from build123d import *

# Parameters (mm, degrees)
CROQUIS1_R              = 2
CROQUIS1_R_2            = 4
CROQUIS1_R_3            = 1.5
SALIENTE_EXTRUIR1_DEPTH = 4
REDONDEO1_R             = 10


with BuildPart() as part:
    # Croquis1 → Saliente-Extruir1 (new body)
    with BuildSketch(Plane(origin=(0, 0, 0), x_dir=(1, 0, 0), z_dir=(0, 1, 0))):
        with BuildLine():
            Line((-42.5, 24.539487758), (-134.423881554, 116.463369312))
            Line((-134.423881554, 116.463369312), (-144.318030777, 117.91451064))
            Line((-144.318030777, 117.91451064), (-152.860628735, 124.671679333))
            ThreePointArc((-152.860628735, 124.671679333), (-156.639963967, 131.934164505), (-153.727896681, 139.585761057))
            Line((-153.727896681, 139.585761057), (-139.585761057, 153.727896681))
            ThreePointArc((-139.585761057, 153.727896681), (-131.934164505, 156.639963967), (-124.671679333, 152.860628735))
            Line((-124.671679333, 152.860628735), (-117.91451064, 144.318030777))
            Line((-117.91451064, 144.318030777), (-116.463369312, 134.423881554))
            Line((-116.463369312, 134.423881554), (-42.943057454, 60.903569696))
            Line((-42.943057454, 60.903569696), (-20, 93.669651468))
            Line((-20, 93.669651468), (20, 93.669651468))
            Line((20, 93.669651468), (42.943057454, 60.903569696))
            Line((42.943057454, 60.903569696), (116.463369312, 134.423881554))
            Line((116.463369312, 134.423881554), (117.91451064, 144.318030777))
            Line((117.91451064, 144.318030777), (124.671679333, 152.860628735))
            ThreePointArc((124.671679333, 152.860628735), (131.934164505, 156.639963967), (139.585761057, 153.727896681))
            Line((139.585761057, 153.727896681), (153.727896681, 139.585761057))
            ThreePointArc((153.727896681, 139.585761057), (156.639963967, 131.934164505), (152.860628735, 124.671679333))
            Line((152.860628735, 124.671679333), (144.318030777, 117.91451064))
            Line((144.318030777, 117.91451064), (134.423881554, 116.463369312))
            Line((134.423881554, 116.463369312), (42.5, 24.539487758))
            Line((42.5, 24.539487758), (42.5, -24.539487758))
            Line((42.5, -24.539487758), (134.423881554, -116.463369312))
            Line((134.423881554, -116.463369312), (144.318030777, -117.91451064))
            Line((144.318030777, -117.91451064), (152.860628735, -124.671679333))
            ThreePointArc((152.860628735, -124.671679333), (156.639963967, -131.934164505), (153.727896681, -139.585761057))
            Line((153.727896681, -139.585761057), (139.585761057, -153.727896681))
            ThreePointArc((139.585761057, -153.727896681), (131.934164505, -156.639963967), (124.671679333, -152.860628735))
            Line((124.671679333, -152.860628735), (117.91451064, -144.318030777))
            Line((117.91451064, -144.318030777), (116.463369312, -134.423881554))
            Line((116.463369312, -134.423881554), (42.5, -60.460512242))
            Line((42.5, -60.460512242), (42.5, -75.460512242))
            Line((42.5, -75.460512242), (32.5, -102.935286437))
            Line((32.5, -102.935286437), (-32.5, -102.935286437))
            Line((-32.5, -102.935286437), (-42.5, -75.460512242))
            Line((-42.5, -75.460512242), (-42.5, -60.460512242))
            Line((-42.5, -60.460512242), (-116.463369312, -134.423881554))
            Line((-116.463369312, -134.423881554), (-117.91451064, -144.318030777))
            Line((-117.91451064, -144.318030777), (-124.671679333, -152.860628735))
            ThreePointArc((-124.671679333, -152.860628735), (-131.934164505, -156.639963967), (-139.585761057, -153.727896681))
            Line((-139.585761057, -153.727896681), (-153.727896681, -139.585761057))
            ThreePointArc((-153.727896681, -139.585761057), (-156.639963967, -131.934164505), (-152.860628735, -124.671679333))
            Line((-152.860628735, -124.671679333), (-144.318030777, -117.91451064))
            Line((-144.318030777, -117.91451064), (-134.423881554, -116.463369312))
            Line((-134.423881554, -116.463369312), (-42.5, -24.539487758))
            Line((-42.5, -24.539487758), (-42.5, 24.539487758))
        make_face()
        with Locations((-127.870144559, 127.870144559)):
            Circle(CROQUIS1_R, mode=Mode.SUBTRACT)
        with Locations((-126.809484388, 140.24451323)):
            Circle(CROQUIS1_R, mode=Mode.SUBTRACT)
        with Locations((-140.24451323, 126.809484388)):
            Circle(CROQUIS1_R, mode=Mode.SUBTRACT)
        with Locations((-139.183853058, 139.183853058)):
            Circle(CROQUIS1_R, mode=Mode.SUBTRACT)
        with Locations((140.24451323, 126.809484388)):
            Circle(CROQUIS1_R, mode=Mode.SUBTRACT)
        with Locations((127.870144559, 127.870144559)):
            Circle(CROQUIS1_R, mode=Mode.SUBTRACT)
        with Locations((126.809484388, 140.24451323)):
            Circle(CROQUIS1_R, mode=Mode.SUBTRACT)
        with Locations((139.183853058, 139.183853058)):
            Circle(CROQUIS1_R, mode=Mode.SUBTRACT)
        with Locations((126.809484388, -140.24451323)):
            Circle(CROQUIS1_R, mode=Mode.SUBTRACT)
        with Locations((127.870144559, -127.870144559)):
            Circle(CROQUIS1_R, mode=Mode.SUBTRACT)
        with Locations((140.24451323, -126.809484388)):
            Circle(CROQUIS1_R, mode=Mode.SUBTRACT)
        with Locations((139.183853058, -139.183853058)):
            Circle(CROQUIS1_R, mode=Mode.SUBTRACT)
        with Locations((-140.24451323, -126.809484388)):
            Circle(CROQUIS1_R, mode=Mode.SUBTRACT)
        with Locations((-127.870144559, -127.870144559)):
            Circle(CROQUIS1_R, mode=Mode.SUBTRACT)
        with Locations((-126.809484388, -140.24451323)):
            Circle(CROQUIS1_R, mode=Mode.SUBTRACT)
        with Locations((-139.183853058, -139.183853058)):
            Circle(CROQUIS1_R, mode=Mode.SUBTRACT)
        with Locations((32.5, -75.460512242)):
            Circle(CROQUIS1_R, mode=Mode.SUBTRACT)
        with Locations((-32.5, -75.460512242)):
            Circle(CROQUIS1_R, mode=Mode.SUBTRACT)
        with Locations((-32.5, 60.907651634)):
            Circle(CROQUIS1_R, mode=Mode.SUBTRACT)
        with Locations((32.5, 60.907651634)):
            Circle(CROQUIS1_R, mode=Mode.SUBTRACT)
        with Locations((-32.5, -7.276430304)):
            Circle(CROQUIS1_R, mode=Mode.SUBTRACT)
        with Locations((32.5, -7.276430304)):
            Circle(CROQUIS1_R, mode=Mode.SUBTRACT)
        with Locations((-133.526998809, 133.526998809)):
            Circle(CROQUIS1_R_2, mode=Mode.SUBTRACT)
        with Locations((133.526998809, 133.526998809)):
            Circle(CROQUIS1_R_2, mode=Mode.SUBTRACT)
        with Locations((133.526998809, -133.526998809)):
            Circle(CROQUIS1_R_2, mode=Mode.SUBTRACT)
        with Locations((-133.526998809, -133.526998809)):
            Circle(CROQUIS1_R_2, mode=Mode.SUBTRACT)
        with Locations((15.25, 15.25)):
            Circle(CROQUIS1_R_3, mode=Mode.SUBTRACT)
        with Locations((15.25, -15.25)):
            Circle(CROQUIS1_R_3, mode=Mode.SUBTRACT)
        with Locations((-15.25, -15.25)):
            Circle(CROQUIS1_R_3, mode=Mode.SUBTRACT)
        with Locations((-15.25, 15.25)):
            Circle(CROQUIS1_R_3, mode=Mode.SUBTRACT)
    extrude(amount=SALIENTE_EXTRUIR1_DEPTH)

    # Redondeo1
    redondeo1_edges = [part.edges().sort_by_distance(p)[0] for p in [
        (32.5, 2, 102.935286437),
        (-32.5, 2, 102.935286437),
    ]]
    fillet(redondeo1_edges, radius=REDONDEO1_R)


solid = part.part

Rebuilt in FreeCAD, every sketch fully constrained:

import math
import FreeCAD as App
import Part
import Sketcher
from FreeCAD import Vector
Q = App.Units.Quantity


def edges_at(feature, points):
    """Names of the edges that pass closest to the given points."""
    edges = feature.Shape.Edges
    near = lambda p: min(range(len(edges)), key=lambda i: edges[i].distToShape(Part.Vertex(*p))[0])
    return sorted({f"Edge{near(p) + 1}" for p in points})

doc = App.newDocument("Part")
body = doc.addObject("PartDesign::Body", "Body")

sketch1 = body.newObject("Sketcher::SketchObject", "Sketch")
sketch1.AttachmentSupport = (doc.getObject("XZ_Plane"), [""])
sketch1.MapMode = "FlatFace"
sketch1.addGeometry([
    Part.LineSegment(Vector(-134.423882, -116.463369, 0), Vector(-42.5, -24.539488, 0)),
    Part.LineSegment(Vector(-42.5, -24.539488, 0), Vector(-42.5, 24.539488, 0)),
    Part.LineSegment(Vector(-42.5, 24.539488, 0), Vector(-134.423882, 116.463369, 0)),
    Part.LineSegment(Vector(-134.423882, 116.463369, 0), Vector(-144.318031, 117.914511, 0)),
    Part.LineSegment(Vector(-144.318031, 117.914511, 0), Vector(-152.860629, 124.671679, 0)),
    Part.ArcOfCircle(Part.Circle(Vector(-146.656829, 132.514693, 0), Vector(0, 0, 1), 10), math.radians(135), math.radians(231.656112)),
    Part.LineSegment(Vector(-153.727897, 139.585761, 0), Vector(-139.585761, 153.727897, 0)),
    Part.ArcOfCircle(Part.Circle(Vector(-132.514693, 146.656829, 0), Vector(0, 0, 1), 10), math.radians(38.343888), math.radians(135)),
    Part.LineSegment(Vector(-124.671679, 152.860629, 0), Vector(-117.914511, 144.318031, 0)),
    Part.LineSegment(Vector(-117.914511, 144.318031, 0), Vector(-116.463369, 134.423882, 0)),
    Part.LineSegment(Vector(-116.463369, 134.423882, 0), Vector(-42.5, 60.460512, 0)),
    Part.LineSegment(Vector(-42.5, 60.460512, 0), Vector(-42.5, 75.460512, 0)),
    Part.LineSegment(Vector(-42.5, 75.460512, 0), Vector(-32.5, 102.935286, 0)),
    Part.LineSegment(Vector(-32.5, 102.935286, 0), Vector(32.5, 102.935286, 0)),
    Part.LineSegment(Vector(32.5, 102.935286, 0), Vector(42.5, 75.460512, 0)),
    Part.LineSegment(Vector(42.5, 75.460512, 0), Vector(42.5, 60.460512, 0)),
    Part.LineSegment(Vector(42.5, 60.460512, 0), Vector(116.463369, 134.423882, 0)),
    Part.LineSegment(Vector(116.463369, 134.423882, 0), Vector(117.914511, 144.318031, 0)),
    Part.LineSegment(Vector(117.914511, 144.318031, 0), Vector(124.671679, 152.860629, 0)),
    Part.ArcOfCircle(Part.Circle(Vector(132.514693, 146.656829, 0), Vector(0, 0, 1), 10), math.radians(45), math.radians(141.656112)),
    Part.LineSegment(Vector(139.585761, 153.727897, 0), Vector(153.727897, 139.585761, 0)),
    Part.ArcOfCircle(Part.Circle(Vector(146.656829, 132.514693, 0), Vector(0, 0, 1), 10), math.radians(-51.656112), math.radians(45)),
    Part.LineSegment(Vector(152.860629, 124.671679, 0), Vector(144.318031, 117.914511, 0)),
    Part.LineSegment(Vector(144.318031, 117.914511, 0), Vector(134.423882, 116.463369, 0)),
    Part.LineSegment(Vector(134.423882, 116.463369, 0), Vector(42.5, 24.539488, 0)),
    Part.LineSegment(Vector(42.5, 24.539488, 0), Vector(42.5, -24.539488, 0)),
    Part.LineSegment(Vector(42.5, -24.539488, 0), Vector(134.423882, -116.463369, 0)),
    Part.LineSegment(Vector(134.423882, -116.463369, 0), Vector(144.318031, -117.914511, 0)),
    Part.LineSegment(Vector(144.318031, -117.914511, 0), Vector(152.860629, -124.671679, 0)),
    Part.ArcOfCircle(Part.Circle(Vector(146.656829, -132.514693, 0), Vector(0, 0, 1), 10), math.radians(-45), math.radians(51.656112)),
    Part.LineSegment(Vector(153.727897, -139.585761, 0), Vector(139.585761, -153.727897, 0)),
    Part.ArcOfCircle(Part.Circle(Vector(132.514693, -146.656829, 0), Vector(0, 0, 1), 10), math.radians(-141.656112), math.radians(-45)),
    Part.LineSegment(Vector(124.671679, -152.860629, 0), Vector(117.914511, -144.318031, 0)),
    Part.LineSegment(Vector(117.914511, -144.318031, 0), Vector(116.463369, -134.423882, 0)),
    Part.LineSegment(Vector(116.463369, -134.423882, 0), Vector(42.943057, -60.90357, 0)),
    Part.LineSegment(Vector(42.943057, -60.90357, 0), Vector(20, -93.669651, 0)),
    Part.LineSegment(Vector(20, -93.669651, 0), Vector(-20, -93.669651, 0)),
    Part.LineSegment(Vector(-20, -93.669651, 0), Vector(-42.943057, -60.90357, 0)),
    Part.LineSegment(Vector(-42.943057, -60.90357, 0), Vector(-116.463369, -134.423882, 0)),
    Part.LineSegment(Vector(-116.463369, -134.423882, 0), Vector(-117.914511, -144.318031, 0)),
    Part.LineSegment(Vector(-117.914511, -144.318031, 0), Vector(-124.671679, -152.860629, 0)),
    Part.ArcOfCircle(Part.Circle(Vector(-132.514693, -146.656829, 0), Vector(0, 0, 1), 10), math.radians(-135), math.radians(-38.343888)),
    Part.LineSegment(Vector(-139.585761, -153.727897, 0), Vector(-153.727897, -139.585761, 0)),
    Part.ArcOfCircle(Part.Circle(Vector(-146.656829, -132.514693, 0), Vector(0, 0, 1), 10), math.radians(128.343888), math.radians(225)),
    Part.LineSegment(Vector(-152.860629, -124.671679, 0), Vector(-144.318031, -117.914511, 0)),
    Part.LineSegment(Vector(-144.318031, -117.914511, 0), Vector(-134.423882, -116.463369, 0)),
    Part.Circle(Vector(139.183853, 139.183853, 0), Vector(0, 0, 1), 2),
    Part.Circle(Vector(133.526999, 133.526999, 0), Vector(0, 0, 1), 4),
    Part.Circle(Vector(126.809484, 140.244513, 0), Vector(0, 0, 1), 2),
    Part.Circle(Vector(140.244513, 126.809484, 0), Vector(0, 0, 1), 2),
    Part.Circle(Vector(127.870145, 127.870145, 0), Vector(0, 0, 1), 2),
    Part.Circle(Vector(32.5, 75.460512, 0), Vector(0, 0, 1), 2),
    Part.Circle(Vector(32.5, 7.27643, 0), Vector(0, 0, 1), 2),
    Part.Circle(Vector(15.25, 15.25, 0), Vector(0, 0, 1), 1.5),
    Part.Circle(Vector(-32.5, 75.460512, 0), Vector(0, 0, 1), 2),
    Part.Circle(Vector(-126.809484, 140.244513, 0), Vector(0, 0, 1), 2),
    Part.Circle(Vector(-139.183853, 139.183853, 0), Vector(0, 0, 1), 2),
    Part.Circle(Vector(-133.526999, 133.526999, 0), Vector(0, 0, 1), 4),
    Part.Circle(Vector(-127.870145, 127.870145, 0), Vector(0, 0, 1), 2),
    Part.Circle(Vector(-140.244513, 126.809484, 0), Vector(0, 0, 1), 2),
    Part.Circle(Vector(-15.25, 15.25, 0), Vector(0, 0, 1), 1.5),
    Part.Circle(Vector(-32.5, 7.27643, 0), Vector(0, 0, 1), 2),
    Part.Circle(Vector(15.25, -15.25, 0), Vector(0, 0, 1), 1.5),
    Part.Circle(Vector(32.5, -60.907652, 0), Vector(0, 0, 1), 2),
    Part.Circle(Vector(140.244513, -126.809484, 0), Vector(0, 0, 1), 2),
    Part.Circle(Vector(127.870145, -127.870145, 0), Vector(0, 0, 1), 2),
    Part.Circle(Vector(133.526999, -133.526999, 0), Vector(0, 0, 1), 4),
    Part.Circle(Vector(139.183853, -139.183853, 0), Vector(0, 0, 1), 2),
    Part.Circle(Vector(126.809484, -140.244513, 0), Vector(0, 0, 1), 2),
    Part.Circle(Vector(-15.25, -15.25, 0), Vector(0, 0, 1), 1.5),
    Part.Circle(Vector(-32.5, -60.907652, 0), Vector(0, 0, 1), 2),
    Part.Circle(Vector(-127.870145, -127.870145, 0), Vector(0, 0, 1), 2),
    Part.Circle(Vector(-140.244513, -126.809484, 0), Vector(0, 0, 1), 2),
    Part.Circle(Vector(-126.809484, -140.244513, 0), Vector(0, 0, 1), 2),
    Part.Circle(Vector(-133.526999, -133.526999, 0), Vector(0, 0, 1), 4),
    Part.Circle(Vector(-139.183853, -139.183853, 0), Vector(0, 0, 1), 2),
], False)
sketch1.addConstraint([
    Sketcher.Constraint("Coincident", 0, 2, 1, 1),
    Sketcher.Constraint("Coincident", 1, 2, 2, 1),
    Sketcher.Constraint("Coincident", 2, 2, 3, 1),
    Sketcher.Constraint("Coincident", 3, 2, 4, 1),
    Sketcher.Constraint("Tangent", 4, 2, 5, 2),
    Sketcher.Constraint("Tangent", 5, 1, 6, 1),
    Sketcher.Constraint("Tangent", 6, 2, 7, 2),
    Sketcher.Constraint("Tangent", 7, 1, 8, 1),
    Sketcher.Constraint("Coincident", 8, 2, 9, 1),
    Sketcher.Constraint("Coincident", 9, 2, 10, 1),
    Sketcher.Constraint("Coincident", 10, 2, 11, 1),
    Sketcher.Constraint("Coincident", 11, 2, 12, 1),
    Sketcher.Constraint("Coincident", 12, 2, 13, 1),
    Sketcher.Constraint("Coincident", 13, 2, 14, 1),
    Sketcher.Constraint("Coincident", 14, 2, 15, 1),
    Sketcher.Constraint("Coincident", 15, 2, 16, 1),
    Sketcher.Constraint("Coincident", 16, 2, 17, 1),
    Sketcher.Constraint("Coincident", 17, 2, 18, 1),
    Sketcher.Constraint("Tangent", 18, 2, 19, 2),
    Sketcher.Constraint("Tangent", 19, 1, 20, 1),
    Sketcher.Constraint("Tangent", 20, 2, 21, 2),
    Sketcher.Constraint("Tangent", 21, 1, 22, 1),
    Sketcher.Constraint("Coincident", 22, 2, 23, 1),
    Sketcher.Constraint("Coincident", 23, 2, 24, 1),
    Sketcher.Constraint("Coincident", 24, 2, 25, 1),
    Sketcher.Constraint("Coincident", 25, 2, 26, 1),
    Sketcher.Constraint("Coincident", 26, 2, 27, 1),
    Sketcher.Constraint("Coincident", 27, 2, 28, 1),
    Sketcher.Constraint("Tangent", 28, 2, 29, 2),
    Sketcher.Constraint("Tangent", 29, 1, 30, 1),
    Sketcher.Constraint("Tangent", 30, 2, 31, 2),
    Sketcher.Constraint("Tangent", 31, 1, 32, 1),
    Sketcher.Constraint("Coincident", 32, 2, 33, 1),
    Sketcher.Constraint("Coincident", 33, 2, 34, 1),
    Sketcher.Constraint("Coincident", 34, 2, 35, 1),
    Sketcher.Constraint("Coincident", 35, 2, 36, 1),
    Sketcher.Constraint("Coincident", 36, 2, 37, 1),
    Sketcher.Constraint("Coincident", 37, 2, 38, 1),
    Sketcher.Constraint("Coincident", 38, 2, 39, 1),
    Sketcher.Constraint("Coincident", 39, 2, 40, 1),
    Sketcher.Constraint("Tangent", 40, 2, 41, 2),
    Sketcher.Constraint("Tangent", 41, 1, 42, 1),
    Sketcher.Constraint("Tangent", 42, 2, 43, 2),
    Sketcher.Constraint("Tangent", 43, 1, 44, 1),
    Sketcher.Constraint("Coincident", 44, 2, 45, 1),
    Sketcher.Constraint("Coincident", 45, 2, 0, 1),
    Sketcher.Constraint("Vertical", 1),
    Sketcher.Constraint("Vertical", 11),
    Sketcher.Constraint("Horizontal", 13),
    Sketcher.Constraint("Vertical", 15),
    Sketcher.Constraint("Vertical", 25),
    Sketcher.Constraint("Horizontal", 36),
    Sketcher.Constraint("Equal", 5, 7),
    Sketcher.Constraint("Equal", 7, 19),
    Sketcher.Constraint("Equal", 19, 21),
    Sketcher.Constraint("Equal", 21, 29),
    Sketcher.Constraint("Equal", 29, 31),
    Sketcher.Constraint("Equal", 31, 41),
    Sketcher.Constraint("Equal", 41, 43),
    Sketcher.Constraint("Equal", 46, 48),
    Sketcher.Constraint("Equal", 48, 49),
    Sketcher.Constraint("Equal", 49, 50),
    Sketcher.Constraint("Equal", 50, 51),
    Sketcher.Constraint("Equal", 51, 52),
    Sketcher.Constraint("Equal", 52, 54),
    Sketcher.Constraint("Equal", 54, 55),
    Sketcher.Constraint("Equal", 55, 56),
    Sketcher.Constraint("Equal", 47, 57),
    Sketcher.Constraint("Equal", 56, 58),
    Sketcher.Constraint("Equal", 58, 59),
    Sketcher.Constraint("Equal", 53, 60),
    Sketcher.Constraint("Equal", 59, 61),
    Sketcher.Constraint("Equal", 60, 62),
    Sketcher.Constraint("Equal", 61, 63),
    Sketcher.Constraint("Equal", 63, 64),
    Sketcher.Constraint("Equal", 64, 65),
    Sketcher.Constraint("Equal", 57, 66),
    Sketcher.Constraint("Equal", 65, 67),
    Sketcher.Constraint("Equal", 67, 68),
    Sketcher.Constraint("Equal", 62, 69),
    Sketcher.Constraint("Equal", 68, 70),
    Sketcher.Constraint("Equal", 70, 71),
    Sketcher.Constraint("Equal", 71, 72),
    Sketcher.Constraint("Equal", 72, 73),
    Sketcher.Constraint("Equal", 66, 74),
    Sketcher.Constraint("Equal", 73, 75),
    Sketcher.Constraint("Symmetric", 5, 3, 29, 3, -1, 1),
    Sketcher.Constraint("Symmetric", 7, 3, 31, 3, -1, 1),
    Sketcher.Constraint("Symmetric", 19, 3, 41, 3, -1, 1),
    Sketcher.Constraint("Symmetric", 21, 3, 43, 3, -1, 1),
    Sketcher.Constraint("Symmetric", 60, 3, 62, 3, -1, 1),
    Sketcher.Constraint("Symmetric", 59, 3, 64, 3, -1, 1),
    Sketcher.Constraint("Symmetric", 58, 3, 65, 3, -1, 1),
    Sketcher.Constraint("Symmetric", 57, 3, 66, 3, -1, 1),
    Sketcher.Constraint("Symmetric", 56, 3, 67, 3, -1, 1),
    Sketcher.Constraint("Symmetric", 55, 3, 68, 3, -1, 1),
    Sketcher.Constraint("Symmetric", 53, 3, 69, 3, -1, 1),
    Sketcher.Constraint("Symmetric", 50, 3, 71, 3, -1, 1),
    Sketcher.Constraint("Symmetric", 49, 3, 72, 3, -1, 1),
    Sketcher.Constraint("Symmetric", 48, 3, 73, 3, -1, 1),
    Sketcher.Constraint("Symmetric", 47, 3, 74, 3, -1, 1),
    Sketcher.Constraint("Symmetric", 46, 3, 75, 3, -1, 1),
    Sketcher.Constraint("Symmetric", 0, 2, 24, 2, -1, 1),
    Sketcher.Constraint("Symmetric", 2, 2, 26, 2, -1, 1),
    Sketcher.Constraint("Symmetric", 3, 2, 27, 2, -1, 1),
    Sketcher.Constraint("Symmetric", 8, 2, 32, 2, -1, 1),
    Sketcher.Constraint("Symmetric", 9, 2, 33, 2, -1, 1),
    Sketcher.Constraint("Symmetric", 16, 2, 38, 2, -1, 1),
    Sketcher.Constraint("Symmetric", 17, 2, 39, 2, -1, 1),
    Sketcher.Constraint("Symmetric", 22, 2, 44, 2, -1, 1),
    Sketcher.Constraint("Symmetric", 23, 2, 45, 2, -1, 1),
    Sketcher.Constraint("Symmetric", 7, 3, 19, 3, -2),
    Sketcher.Constraint("Symmetric", 5, 3, 21, 3, -2),
    Sketcher.Constraint("Symmetric", 51, 3, 54, 3, -2),
    Sketcher.Constraint("Symmetric", 48, 3, 55, 3, -2),
    Sketcher.Constraint("Symmetric", 46, 3, 56, 3, -2),
    Sketcher.Constraint("Symmetric", 47, 3, 57, 3, -2),
    Sketcher.Constraint("Symmetric", 50, 3, 58, 3, -2),
    Sketcher.Constraint("Symmetric", 49, 3, 59, 3, -2),
    Sketcher.Constraint("Symmetric", 53, 3, 60, 3, -2),
    Sketcher.Constraint("Symmetric", 52, 3, 61, 3, -2),
    Sketcher.Constraint("Symmetric", 63, 3, 70, 3, -2),
    Sketcher.Constraint("Symmetric", 11, 2, 14, 2, -2),
    Sketcher.Constraint("Symmetric", 9, 2, 16, 2, -2),
    Sketcher.Constraint("Symmetric", 8, 2, 17, 2, -2),
    Sketcher.Constraint("Symmetric", 3, 2, 22, 2, -2),
    Sketcher.Constraint("Symmetric", 2, 2, 23, 2, -2),
    Sketcher.Constraint("Symmetric", 34, 2, 37, 2, -2),
    Sketcher.Constraint("Perpendicular", 0, 2),
    Sketcher.Constraint("Perpendicular", 2, 6),
    Sketcher.Constraint("Perpendicular", 6, 10),
    Sketcher.Constraint("Perpendicular", 10, 16),
    Sketcher.Constraint("Perpendicular", 3, 17),
    Sketcher.Constraint("Perpendicular", 4, 18),
    Sketcher.Constraint("Perpendicular", 16, 20),
    Sketcher.Constraint("Perpendicular", 24, 26),
    Sketcher.Constraint("Perpendicular", 30, 34),
    Sketcher.Constraint("Horizontal", 54, 3, 11, 2),
    Sketcher.Constraint("Vertical", 51, 3, 52, 3),
    Sketcher.Constraint("Vertical", 52, 3, 63, 3),
    Sketcher.Constraint("Vertical", 1, 2, 10, 2),
    Sketcher.Constraint("Vertical", 70, 3, 12, 2),
    Sketcher.Constraint("Vertical", 63, 3, 13, 2),
    Sketcher.Constraint("Equal", 4, 8),
    Sketcher.Constraint("Equal", 3, 9),
    Sketcher.Constraint("Equal", 35, 37),
    Sketcher.Constraint("Diameter", 46, Q("4 mm")),
    Sketcher.Constraint("Diameter", 47, Q("8 mm")),
    Sketcher.Constraint("Diameter", 53, Q("3 mm")),
    Sketcher.Constraint("Radius", 5, Q("10 mm")),
    Sketcher.Constraint("DistanceX", 13, 1, 13, 2, Q("65 mm")),
    Sketcher.Constraint("DistanceX", 36, 2, 36, 1, Q("40 mm")),
    Sketcher.Constraint("DistanceY", 11, 1, 11, 2, Q("15 mm")),
    Sketcher.Constraint("Angle", 12, Q("70 deg")),
    Sketcher.Constraint("Angle", 35, Q("-125 deg")),
    Sketcher.Constraint("Distance", 0, Q("130 mm")),
    Sketcher.Constraint("Distance", 3, Q("10 mm")),
    Sketcher.Constraint("Distance", 6, Q("20 mm")),
    Sketcher.Constraint("Distance", 35, Q("40 mm")),
    Sketcher.Constraint("Distance", 10, Q("104.6 mm")),
    Sketcher.Constraint("DistanceX", 0, 2, -1, 1, Q("42.5 mm")),
    Sketcher.Constraint("DistanceX", -1, 1, 53, 3, Q("15.25 mm")),
    Sketcher.Constraint("DistanceY", -1, 1, 53, 3, Q("15.25 mm")),
    Sketcher.Constraint("DistanceX", -1, 1, 47, 3, Q("133.526999 mm")),
    Sketcher.Constraint("DistanceY", -1, 1, 47, 3, Q("133.526999 mm")),
    Sketcher.Constraint("DistanceY", 1, 1, 1, 2, Q("49.078976 mm")),
    Sketcher.Constraint("DistanceX", 5, 3, -1, 1, Q("146.656829 mm")),
    Sketcher.Constraint("DistanceY", -1, 1, 52, 3, Q("7.27643 mm")),
    Sketcher.Constraint("DistanceY", 63, 3, -1, 1, Q("60.907652 mm")),
    Sketcher.Constraint("DistanceX", 3, 2, -1, 1, Q("144.318031 mm")),
    Sketcher.Constraint("DistanceX", -1, 1, 46, 3, Q("139.183853 mm")),
    Sketcher.Constraint("DistanceY", -1, 1, 46, 3, Q("139.183853 mm")),
    Sketcher.Constraint("DistanceX", -1, 1, 48, 3, Q("126.809484 mm")),
    Sketcher.Constraint("DistanceY", -1, 1, 48, 3, Q("140.244513 mm")),
    Sketcher.Constraint("DistanceX", -1, 1, 49, 3, Q("140.244513 mm")),
    Sketcher.Constraint("DistanceY", -1, 1, 49, 3, Q("126.809484 mm")),
    Sketcher.Constraint("DistanceX", -1, 1, 50, 3, Q("127.870145 mm")),
    Sketcher.Constraint("DistanceY", -1, 1, 50, 3, Q("127.870145 mm")),
])
pad1 = body.newObject("PartDesign::Pad", "Pad")
pad1.Profile = sketch1
pad1.Length = 4
pad1.Reversed = True
doc.recompute()

fillet = body.newObject("PartDesign::Fillet", "Fillet")
fillet.Base = (pad1, edges_at(pad1, [(32.5, 2, 102.935), (-32.5, 2, 102.935)]))
fillet.Radius = 10

doc.recompute()
